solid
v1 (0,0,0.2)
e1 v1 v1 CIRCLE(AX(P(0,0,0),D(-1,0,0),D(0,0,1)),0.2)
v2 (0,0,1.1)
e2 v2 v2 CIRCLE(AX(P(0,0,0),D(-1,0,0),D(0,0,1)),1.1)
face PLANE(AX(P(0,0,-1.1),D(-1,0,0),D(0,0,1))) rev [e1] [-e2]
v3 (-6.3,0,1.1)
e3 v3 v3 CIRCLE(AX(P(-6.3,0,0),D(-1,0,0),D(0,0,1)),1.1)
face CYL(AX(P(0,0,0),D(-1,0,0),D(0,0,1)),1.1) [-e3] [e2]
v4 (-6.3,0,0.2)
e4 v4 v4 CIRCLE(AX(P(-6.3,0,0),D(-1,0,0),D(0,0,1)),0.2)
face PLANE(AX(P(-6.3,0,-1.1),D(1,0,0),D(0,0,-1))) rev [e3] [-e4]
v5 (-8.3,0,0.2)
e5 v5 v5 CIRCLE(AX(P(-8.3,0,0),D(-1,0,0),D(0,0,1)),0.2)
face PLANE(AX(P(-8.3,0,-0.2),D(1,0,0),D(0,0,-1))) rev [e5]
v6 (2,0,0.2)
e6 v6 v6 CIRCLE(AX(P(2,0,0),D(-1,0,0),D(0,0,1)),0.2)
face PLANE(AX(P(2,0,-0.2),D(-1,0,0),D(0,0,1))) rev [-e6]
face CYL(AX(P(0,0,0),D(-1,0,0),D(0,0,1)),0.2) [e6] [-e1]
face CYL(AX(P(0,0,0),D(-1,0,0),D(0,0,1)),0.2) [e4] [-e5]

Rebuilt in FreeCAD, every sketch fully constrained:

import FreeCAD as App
import Part
import Sketcher
Q = App.Units.Quantity


def add_polygon(sketch, points):
    """Adds a closed chain of lines whose ends are joined by coincident constraints."""
    first, n = sketch.GeometryCount, len(points)
    for a, b in zip(points, points[1:] + points[:1]):
        sketch.addGeometry(Part.LineSegment(App.Vector(*a, 0), App.Vector(*b, 0)), False)
    for i in range(n):
        sketch.addConstraint(Sketcher.Constraint("Coincident", first + i, 2, first + (i + 1) % n, 1))

doc = App.newDocument("Part")
params = doc.addObject("Spreadsheet::Sheet", "Params")
for row, (alias, value) in enumerate([
    ("sketch1_width", "2 mm"),
    ("sketch1_width2", "10.3 mm"),
    ("sketch1_height", "0.2 mm"),
    ("sketch1_height2", "0.9 mm"),
    ("revolution_angle", "360 deg"),
], start=1):
    params.set(f"A{row}", alias)
    params.set(f"B{row}", "=" + value)
    params.setAlias(f"B{row}", alias)

body = doc.addObject("PartDesign::Body", "Body")

# Sketch on XZ plane
sketch1 = body.newObject("Sketcher::SketchObject", "Sketch")
sketch1.AttachmentSupport = (doc.getObject("XZ_Plane"), [""])
sketch1.MapMode = "FlatFace"
add_polygon(sketch1, [(-8.3, 0), (2, 0), (2, -0.2), (0, -0.2), (0, -1.1), (-6.3, -1.1), (-6.3, -0.2), (-8.3, -0.2)])  # lines 0-7
sketch1.addConstraint(Sketcher.Constraint("Horizontal", 0))
sketch1.addConstraint(Sketcher.Constraint("Vertical", 1))
sketch1.addConstraint(Sketcher.Constraint("Horizontal", 2))
sketch1.addConstraint(Sketcher.Constraint("Vertical", 3))
sketch1.addConstraint(Sketcher.Constraint("Horizontal", 4))
sketch1.addConstraint(Sketcher.Constraint("Vertical", 5))
sketch1.addConstraint(Sketcher.Constraint("Horizontal", 6))
sketch1.addConstraint(Sketcher.Constraint("Vertical", 7))
sketch1.addConstraint(Sketcher.Constraint("PointOnObject", 0, 2, -1))
sketch1.addConstraint(Sketcher.Constraint("PointOnObject", 2, 2, -2))
sketch1.addConstraint(Sketcher.Constraint("Horizontal", 2, 2, 5, 2))
sketch1.addConstraint(Sketcher.Constraint("Equal", 2, 6))
sketch1.addConstraint(Sketcher.Constraint("DistanceX", 2, 2, 2, 1, Q("2 mm")))
sketch1.addConstraint(Sketcher.Constraint("DistanceX", 0, 1, 0, 2, Q("10.3 mm")))
sketch1.addConstraint(Sketcher.Constraint("DistanceY", 1, 2, 1, 1, Q("0.2 mm")))
sketch1.addConstraint(Sketcher.Constraint("DistanceY", 3, 2, 3, 1, Q("0.9 mm")))
sketch1.setExpression("Constraints[20]", "Params.sketch1_width")
sketch1.setExpression("Constraints[21]", "Params.sketch1_width2")
sketch1.setExpression("Constraints[22]", "Params.sketch1_height")
sketch1.setExpression("Constraints[23]", "Params.sketch1_height2")
revolution = body.newObject("PartDesign::Revolution", "Revolution")
revolution.Profile = sketch1
revolution.ReferenceAxis = (sketch1, ["H_Axis"])
revolution.setExpression("Angle", "Params.revolution_angle")

doc.recompute()
